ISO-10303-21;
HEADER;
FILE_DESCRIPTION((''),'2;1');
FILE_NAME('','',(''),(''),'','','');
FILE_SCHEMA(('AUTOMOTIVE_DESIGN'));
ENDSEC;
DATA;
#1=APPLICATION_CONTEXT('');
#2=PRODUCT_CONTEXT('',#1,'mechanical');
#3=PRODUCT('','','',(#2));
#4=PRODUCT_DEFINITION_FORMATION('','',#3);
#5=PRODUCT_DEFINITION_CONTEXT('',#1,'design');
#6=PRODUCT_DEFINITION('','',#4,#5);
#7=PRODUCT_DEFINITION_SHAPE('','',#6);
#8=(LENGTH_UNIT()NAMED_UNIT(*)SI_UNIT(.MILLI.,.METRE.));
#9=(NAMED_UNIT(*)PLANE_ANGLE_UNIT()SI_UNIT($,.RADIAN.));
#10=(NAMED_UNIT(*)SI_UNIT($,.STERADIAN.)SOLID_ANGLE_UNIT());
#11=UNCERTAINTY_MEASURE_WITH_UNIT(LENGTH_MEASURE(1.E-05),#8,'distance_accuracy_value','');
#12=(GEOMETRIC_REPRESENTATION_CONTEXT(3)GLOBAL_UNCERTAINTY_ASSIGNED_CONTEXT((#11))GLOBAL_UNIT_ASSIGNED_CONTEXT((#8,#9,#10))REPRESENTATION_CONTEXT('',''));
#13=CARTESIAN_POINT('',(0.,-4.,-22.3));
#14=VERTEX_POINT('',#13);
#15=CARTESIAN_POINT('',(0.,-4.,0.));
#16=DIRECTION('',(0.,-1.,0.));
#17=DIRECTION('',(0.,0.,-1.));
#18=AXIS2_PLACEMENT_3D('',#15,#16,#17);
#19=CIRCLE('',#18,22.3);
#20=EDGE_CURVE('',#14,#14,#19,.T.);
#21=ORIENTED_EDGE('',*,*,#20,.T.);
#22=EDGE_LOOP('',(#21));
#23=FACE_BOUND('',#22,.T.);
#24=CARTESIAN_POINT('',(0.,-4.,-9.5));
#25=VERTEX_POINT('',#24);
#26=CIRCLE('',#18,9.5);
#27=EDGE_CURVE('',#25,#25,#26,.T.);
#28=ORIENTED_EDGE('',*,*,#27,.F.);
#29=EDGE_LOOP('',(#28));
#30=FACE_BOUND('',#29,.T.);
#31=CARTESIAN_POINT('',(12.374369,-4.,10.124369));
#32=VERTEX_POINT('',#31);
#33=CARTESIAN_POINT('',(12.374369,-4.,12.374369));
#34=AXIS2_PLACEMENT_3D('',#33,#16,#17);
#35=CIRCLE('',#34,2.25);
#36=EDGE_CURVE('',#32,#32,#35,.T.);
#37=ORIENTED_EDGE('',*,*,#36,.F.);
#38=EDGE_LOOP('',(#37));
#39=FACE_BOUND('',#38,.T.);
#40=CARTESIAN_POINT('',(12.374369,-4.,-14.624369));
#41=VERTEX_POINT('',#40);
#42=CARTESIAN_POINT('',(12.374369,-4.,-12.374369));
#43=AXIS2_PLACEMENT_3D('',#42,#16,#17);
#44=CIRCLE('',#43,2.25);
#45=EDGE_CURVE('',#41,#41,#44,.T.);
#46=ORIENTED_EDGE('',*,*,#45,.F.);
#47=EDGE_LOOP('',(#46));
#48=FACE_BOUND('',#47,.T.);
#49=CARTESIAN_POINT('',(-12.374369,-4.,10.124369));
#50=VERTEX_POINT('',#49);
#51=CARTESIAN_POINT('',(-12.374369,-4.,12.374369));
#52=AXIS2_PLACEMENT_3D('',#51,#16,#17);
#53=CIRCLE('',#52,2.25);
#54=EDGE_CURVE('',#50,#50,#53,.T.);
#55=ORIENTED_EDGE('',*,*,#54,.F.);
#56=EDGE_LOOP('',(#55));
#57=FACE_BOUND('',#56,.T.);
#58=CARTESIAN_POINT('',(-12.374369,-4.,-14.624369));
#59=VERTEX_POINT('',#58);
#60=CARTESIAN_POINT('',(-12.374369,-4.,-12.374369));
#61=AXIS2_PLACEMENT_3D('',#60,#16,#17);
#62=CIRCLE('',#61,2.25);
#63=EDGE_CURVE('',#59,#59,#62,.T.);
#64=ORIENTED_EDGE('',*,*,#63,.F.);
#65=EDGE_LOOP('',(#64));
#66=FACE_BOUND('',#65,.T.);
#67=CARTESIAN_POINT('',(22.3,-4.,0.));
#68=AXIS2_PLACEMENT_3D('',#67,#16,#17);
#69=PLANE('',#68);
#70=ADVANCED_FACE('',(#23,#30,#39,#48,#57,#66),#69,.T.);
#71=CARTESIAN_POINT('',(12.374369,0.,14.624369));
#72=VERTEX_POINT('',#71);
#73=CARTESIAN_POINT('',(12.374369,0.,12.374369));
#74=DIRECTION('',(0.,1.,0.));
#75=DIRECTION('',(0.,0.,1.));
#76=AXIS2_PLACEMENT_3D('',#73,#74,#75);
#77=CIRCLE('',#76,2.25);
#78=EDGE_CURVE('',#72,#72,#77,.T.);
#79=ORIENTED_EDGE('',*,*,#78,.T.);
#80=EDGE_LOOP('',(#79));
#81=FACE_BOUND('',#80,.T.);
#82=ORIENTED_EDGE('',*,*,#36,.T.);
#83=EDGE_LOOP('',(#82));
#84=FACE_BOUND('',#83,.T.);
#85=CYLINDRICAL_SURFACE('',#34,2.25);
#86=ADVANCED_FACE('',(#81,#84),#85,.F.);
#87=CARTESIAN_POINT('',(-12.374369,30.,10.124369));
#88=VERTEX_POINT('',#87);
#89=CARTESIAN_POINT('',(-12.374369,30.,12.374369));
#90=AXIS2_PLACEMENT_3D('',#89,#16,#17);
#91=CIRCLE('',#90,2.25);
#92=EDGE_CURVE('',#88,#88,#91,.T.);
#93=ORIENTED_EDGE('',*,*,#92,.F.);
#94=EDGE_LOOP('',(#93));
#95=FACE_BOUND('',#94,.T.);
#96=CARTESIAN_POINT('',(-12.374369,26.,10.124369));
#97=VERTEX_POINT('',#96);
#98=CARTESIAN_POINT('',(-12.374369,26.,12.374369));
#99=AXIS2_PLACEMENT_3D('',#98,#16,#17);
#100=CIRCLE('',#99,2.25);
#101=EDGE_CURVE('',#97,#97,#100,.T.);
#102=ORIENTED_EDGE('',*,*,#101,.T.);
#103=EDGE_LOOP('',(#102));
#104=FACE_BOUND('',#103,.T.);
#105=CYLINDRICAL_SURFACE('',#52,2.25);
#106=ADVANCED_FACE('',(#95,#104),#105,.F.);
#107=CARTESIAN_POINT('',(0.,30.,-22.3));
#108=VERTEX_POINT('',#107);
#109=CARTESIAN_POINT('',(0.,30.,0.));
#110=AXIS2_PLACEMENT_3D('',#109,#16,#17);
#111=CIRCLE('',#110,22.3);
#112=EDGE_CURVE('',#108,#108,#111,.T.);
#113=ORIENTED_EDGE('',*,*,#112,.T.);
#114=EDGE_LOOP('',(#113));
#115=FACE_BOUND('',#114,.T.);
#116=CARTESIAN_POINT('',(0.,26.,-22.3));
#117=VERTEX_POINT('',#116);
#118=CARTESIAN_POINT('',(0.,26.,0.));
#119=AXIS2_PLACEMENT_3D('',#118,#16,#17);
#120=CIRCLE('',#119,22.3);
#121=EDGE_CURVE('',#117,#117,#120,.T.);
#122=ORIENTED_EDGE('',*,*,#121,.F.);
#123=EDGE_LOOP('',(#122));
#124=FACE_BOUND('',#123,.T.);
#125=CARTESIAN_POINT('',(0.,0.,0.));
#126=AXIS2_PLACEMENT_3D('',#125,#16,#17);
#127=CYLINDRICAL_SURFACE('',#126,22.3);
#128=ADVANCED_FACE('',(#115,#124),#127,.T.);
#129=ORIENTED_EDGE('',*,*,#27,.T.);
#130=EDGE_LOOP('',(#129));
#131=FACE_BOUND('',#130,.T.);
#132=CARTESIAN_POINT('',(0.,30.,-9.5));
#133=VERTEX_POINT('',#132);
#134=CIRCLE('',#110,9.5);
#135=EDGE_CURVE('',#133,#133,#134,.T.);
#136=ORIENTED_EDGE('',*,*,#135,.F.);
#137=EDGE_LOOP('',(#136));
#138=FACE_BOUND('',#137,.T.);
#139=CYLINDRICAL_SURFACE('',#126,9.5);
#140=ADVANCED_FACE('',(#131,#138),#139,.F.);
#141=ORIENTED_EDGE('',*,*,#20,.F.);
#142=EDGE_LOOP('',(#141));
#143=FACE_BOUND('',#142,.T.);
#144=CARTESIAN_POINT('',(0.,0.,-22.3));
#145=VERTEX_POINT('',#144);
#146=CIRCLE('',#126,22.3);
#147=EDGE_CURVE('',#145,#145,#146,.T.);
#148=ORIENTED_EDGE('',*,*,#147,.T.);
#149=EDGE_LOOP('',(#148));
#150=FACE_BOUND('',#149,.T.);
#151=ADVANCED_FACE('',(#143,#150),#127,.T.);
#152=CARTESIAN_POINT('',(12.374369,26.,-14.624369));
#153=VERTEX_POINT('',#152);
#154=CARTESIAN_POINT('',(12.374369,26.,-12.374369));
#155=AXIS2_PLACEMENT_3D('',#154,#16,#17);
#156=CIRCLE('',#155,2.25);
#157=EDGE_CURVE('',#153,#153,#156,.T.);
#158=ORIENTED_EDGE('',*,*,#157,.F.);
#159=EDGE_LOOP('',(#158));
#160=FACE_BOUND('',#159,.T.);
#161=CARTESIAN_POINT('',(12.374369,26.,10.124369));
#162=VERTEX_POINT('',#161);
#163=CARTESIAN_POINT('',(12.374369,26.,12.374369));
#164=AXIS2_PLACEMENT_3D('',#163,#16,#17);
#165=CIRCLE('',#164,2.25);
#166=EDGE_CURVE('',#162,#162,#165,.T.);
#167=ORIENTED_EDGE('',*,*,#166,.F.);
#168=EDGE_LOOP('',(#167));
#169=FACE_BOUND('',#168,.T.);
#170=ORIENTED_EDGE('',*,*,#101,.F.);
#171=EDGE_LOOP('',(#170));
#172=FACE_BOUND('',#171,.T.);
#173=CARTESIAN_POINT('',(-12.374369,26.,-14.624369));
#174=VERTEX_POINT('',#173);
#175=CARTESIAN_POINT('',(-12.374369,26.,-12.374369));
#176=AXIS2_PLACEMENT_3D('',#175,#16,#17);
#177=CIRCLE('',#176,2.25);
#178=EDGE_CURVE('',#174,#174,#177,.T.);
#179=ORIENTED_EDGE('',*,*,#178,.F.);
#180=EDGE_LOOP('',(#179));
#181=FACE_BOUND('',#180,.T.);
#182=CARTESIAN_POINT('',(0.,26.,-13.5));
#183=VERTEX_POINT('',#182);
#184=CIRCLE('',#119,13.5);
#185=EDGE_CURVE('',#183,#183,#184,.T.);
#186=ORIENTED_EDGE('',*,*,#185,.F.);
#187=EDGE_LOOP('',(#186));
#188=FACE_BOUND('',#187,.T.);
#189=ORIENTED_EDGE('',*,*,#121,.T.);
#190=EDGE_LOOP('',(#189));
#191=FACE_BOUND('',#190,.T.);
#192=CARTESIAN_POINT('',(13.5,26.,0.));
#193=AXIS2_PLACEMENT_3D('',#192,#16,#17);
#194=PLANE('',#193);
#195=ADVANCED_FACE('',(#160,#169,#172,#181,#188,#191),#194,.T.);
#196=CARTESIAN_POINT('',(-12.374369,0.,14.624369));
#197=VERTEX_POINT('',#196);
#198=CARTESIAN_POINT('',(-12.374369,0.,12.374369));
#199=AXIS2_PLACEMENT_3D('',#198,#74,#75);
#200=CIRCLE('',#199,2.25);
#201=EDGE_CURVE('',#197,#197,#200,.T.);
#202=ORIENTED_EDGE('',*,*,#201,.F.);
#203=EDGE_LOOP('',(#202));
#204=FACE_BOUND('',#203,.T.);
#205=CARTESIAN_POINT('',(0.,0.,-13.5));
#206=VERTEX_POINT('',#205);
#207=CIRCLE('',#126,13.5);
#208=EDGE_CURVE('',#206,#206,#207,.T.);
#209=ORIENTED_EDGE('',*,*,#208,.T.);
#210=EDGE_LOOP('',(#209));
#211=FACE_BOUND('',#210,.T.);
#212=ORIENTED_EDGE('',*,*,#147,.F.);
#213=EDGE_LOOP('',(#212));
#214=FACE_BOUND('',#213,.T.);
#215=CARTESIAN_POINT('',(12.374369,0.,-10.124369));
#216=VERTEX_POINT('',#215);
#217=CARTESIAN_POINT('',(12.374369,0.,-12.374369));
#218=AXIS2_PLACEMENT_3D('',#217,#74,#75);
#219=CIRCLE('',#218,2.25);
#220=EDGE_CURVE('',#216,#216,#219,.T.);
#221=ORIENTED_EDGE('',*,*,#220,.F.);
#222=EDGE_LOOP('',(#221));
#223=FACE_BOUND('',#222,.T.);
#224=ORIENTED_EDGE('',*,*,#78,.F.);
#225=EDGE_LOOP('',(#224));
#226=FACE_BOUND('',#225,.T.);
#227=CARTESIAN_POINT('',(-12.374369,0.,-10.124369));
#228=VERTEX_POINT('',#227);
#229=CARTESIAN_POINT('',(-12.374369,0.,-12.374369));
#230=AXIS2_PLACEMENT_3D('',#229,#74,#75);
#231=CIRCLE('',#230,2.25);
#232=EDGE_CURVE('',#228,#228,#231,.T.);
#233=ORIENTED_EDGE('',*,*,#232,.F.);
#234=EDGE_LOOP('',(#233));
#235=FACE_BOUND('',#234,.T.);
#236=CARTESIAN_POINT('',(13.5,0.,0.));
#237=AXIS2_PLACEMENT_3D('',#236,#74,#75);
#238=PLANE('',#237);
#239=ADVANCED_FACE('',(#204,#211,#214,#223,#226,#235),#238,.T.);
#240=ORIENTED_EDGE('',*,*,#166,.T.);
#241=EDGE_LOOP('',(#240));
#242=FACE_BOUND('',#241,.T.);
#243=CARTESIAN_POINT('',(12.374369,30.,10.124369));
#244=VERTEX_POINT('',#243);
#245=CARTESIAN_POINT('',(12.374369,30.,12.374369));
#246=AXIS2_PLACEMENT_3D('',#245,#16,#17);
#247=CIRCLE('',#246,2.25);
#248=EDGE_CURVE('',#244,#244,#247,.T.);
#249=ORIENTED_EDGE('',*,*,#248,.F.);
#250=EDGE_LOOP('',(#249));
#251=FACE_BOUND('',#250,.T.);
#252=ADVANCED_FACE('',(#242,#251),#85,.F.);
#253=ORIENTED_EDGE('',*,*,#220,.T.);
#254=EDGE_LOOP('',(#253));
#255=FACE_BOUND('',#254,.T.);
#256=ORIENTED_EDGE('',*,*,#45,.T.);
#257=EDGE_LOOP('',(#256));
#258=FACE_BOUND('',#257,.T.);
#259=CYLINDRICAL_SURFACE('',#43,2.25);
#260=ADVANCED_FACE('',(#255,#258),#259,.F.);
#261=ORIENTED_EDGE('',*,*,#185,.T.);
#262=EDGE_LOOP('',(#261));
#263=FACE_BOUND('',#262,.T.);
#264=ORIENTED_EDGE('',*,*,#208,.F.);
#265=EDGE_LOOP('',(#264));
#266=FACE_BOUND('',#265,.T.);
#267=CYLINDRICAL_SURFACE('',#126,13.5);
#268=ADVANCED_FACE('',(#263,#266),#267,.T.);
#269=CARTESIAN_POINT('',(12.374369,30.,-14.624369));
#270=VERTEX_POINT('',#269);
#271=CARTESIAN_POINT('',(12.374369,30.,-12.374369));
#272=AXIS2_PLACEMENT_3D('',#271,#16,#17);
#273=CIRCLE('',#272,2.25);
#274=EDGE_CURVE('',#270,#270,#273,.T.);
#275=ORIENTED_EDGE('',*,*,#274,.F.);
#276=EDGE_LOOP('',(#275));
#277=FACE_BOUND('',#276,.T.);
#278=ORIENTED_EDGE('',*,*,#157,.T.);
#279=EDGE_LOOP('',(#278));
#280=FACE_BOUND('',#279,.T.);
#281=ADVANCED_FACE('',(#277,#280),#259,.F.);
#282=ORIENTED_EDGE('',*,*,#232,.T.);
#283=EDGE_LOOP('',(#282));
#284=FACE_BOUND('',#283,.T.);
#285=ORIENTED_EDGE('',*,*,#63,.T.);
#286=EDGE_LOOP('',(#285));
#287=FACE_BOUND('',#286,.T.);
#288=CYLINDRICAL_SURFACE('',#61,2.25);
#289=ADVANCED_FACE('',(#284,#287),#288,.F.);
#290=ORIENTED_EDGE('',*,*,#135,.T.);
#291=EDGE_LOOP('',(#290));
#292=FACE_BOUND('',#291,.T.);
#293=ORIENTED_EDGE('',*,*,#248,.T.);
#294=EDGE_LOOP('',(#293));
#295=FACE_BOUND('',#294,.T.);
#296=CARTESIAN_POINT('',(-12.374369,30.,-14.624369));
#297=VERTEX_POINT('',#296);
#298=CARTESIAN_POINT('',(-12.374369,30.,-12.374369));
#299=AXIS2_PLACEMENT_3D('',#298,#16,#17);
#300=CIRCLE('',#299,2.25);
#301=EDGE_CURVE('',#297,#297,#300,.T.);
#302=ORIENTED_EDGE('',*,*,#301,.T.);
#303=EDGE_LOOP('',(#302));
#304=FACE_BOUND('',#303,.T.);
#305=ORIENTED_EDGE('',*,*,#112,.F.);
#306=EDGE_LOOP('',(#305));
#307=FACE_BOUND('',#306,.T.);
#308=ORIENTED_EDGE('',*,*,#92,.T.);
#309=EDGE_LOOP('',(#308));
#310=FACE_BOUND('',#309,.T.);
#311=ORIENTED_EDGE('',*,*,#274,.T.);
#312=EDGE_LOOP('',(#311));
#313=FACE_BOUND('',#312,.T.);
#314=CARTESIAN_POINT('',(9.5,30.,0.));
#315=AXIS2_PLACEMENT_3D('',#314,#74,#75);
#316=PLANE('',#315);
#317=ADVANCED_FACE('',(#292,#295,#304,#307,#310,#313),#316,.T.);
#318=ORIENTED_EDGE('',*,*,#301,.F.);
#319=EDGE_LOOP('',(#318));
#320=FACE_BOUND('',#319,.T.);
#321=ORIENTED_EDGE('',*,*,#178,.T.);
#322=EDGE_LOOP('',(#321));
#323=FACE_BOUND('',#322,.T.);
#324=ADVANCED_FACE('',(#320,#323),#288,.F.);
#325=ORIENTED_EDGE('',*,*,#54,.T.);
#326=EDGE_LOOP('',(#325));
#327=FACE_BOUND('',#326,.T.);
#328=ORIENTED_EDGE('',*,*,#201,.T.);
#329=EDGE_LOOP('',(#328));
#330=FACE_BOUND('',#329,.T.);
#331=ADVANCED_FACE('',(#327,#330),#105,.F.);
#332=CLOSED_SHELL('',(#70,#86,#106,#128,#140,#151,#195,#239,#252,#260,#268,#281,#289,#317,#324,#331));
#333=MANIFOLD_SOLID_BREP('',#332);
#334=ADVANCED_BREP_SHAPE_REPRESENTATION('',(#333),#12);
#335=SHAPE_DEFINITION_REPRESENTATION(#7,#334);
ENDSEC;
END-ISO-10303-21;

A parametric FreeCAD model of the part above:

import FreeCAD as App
import Part
import Sketcher

V = App.Vector
Q = App.Units.Quantity


def add_polygon(sketch, points):
    """Adds a closed chain of lines whose ends are joined by coincident constraints."""
    first, n = sketch.GeometryCount, len(points)
    for a, b in zip(points, points[1:] + points[:1]):
        sketch.addGeometry(Part.LineSegment(App.Vector(*a, 0), App.Vector(*b, 0)), False)
    for i in range(n):
        sketch.addConstraint(Sketcher.Constraint("Coincident", first + i, 2, first + (i + 1) % n, 1))

doc = App.newDocument("Part")
body = doc.addObject("PartDesign::Body", "Body")

# Sketch on XY plane
sketch1 = body.newObject("Sketcher::SketchObject", "Sketch")
sketch1.AttachmentSupport = (doc.getObject("XY_Plane"), [""])
sketch1.MapMode = "FlatFace"
add_polygon(sketch1, [(13.5, 26), (22.3, 26), (22.3, 30), (9.5, 30), (9.5, -4), (22.3, -4), (22.3, 0), (13.5, 0)])  # lines 0-7
sketch1.addConstraint([
    Sketcher.Constraint("Horizontal", 0),
    Sketcher.Constraint("Vertical", 1),
    Sketcher.Constraint("Horizontal", 2),
    Sketcher.Constraint("Vertical", 3),
    Sketcher.Constraint("Horizontal", 4),
    Sketcher.Constraint("Vertical", 5),
    Sketcher.Constraint("Horizontal", 6),
    Sketcher.Constraint("Vertical", 7),
    Sketcher.Constraint("PointOnObject", 5, 2, -1),
    Sketcher.Constraint("Vertical", 1, 2, 4, 2),
    Sketcher.Constraint("Equal", 1, 5),
    Sketcher.Constraint("DistanceY", 1, 1, 1, 2, Q("4 mm")),
    Sketcher.Constraint("DistanceY", 3, 2, 3, 1, Q("34 mm")),
    Sketcher.Constraint("DistanceX", 0, 1, 0, 2, Q("8.8 mm")),
    Sketcher.Constraint("DistanceX", 2, 2, 2, 1, Q("12.8 mm")),
    Sketcher.Constraint("DistanceX", -1, 1, 0, 2, Q("22.3 mm")),
])
revolution = body.newObject("PartDesign::Revolution", "Revolution")
revolution.Profile = sketch1
revolution.ReferenceAxis = (sketch1, ["V_Axis"])
revolution.Angle = 360

# Sketch on XZ plane
sketch2 = body.newObject("Sketcher::SketchObject", "Sketch001")
sketch2.AttachmentSupport = (doc.getObject("XZ_Plane"), [""])
sketch2.MapMode = "FlatFace"
sketch2.AttachmentOffset = App.Placement(V(0, 0, 4), App.Rotation())
sketch2.addGeometry([
    Part.Circle(V(-12.4, 12.4, 0), V(0, 0, 1), 2.2),
    Part.Circle(V(12.4, 12.4, 0), V(0, 0, 1), 2.2),
    Part.Circle(V(12.4, -12.4, 0), V(0, 0, 1), 2.2),
    Part.Circle(V(-12.4, -12.4, 0), V(0, 0, 1), 2.2),
], False)
sketch2.addConstraint([
    Sketcher.Constraint("Equal", 0, 1),
    Sketcher.Constraint("Equal", 1, 2),
    Sketcher.Constraint("Equal", 2, 3),
    Sketcher.Constraint("Symmetric", 0, 3, 2, 3, -1, 1),
    Sketcher.Constraint("Symmetric", 1, 3, 3, 3, -1, 1),
    Sketcher.Constraint("Symmetric", 0, 3, 1, 3, -2),
    Sketcher.Constraint("Diameter", 0, Q("4.5 mm")),
    Sketcher.Constraint("DistanceX", 0, 3, -1, 1, Q("12.374369 mm")),
    Sketcher.Constraint("DistanceY", -1, 1, 0, 3, Q("12.374369 mm")),
])
doc.recompute()
hole = body.newObject("PartDesign::Hole", "Hole")
hole.Profile = sketch2
hole.ThreadType = "None"
hole.Diameter = 4.5
hole.DepthType = "ThroughAll"

doc.recompute()
